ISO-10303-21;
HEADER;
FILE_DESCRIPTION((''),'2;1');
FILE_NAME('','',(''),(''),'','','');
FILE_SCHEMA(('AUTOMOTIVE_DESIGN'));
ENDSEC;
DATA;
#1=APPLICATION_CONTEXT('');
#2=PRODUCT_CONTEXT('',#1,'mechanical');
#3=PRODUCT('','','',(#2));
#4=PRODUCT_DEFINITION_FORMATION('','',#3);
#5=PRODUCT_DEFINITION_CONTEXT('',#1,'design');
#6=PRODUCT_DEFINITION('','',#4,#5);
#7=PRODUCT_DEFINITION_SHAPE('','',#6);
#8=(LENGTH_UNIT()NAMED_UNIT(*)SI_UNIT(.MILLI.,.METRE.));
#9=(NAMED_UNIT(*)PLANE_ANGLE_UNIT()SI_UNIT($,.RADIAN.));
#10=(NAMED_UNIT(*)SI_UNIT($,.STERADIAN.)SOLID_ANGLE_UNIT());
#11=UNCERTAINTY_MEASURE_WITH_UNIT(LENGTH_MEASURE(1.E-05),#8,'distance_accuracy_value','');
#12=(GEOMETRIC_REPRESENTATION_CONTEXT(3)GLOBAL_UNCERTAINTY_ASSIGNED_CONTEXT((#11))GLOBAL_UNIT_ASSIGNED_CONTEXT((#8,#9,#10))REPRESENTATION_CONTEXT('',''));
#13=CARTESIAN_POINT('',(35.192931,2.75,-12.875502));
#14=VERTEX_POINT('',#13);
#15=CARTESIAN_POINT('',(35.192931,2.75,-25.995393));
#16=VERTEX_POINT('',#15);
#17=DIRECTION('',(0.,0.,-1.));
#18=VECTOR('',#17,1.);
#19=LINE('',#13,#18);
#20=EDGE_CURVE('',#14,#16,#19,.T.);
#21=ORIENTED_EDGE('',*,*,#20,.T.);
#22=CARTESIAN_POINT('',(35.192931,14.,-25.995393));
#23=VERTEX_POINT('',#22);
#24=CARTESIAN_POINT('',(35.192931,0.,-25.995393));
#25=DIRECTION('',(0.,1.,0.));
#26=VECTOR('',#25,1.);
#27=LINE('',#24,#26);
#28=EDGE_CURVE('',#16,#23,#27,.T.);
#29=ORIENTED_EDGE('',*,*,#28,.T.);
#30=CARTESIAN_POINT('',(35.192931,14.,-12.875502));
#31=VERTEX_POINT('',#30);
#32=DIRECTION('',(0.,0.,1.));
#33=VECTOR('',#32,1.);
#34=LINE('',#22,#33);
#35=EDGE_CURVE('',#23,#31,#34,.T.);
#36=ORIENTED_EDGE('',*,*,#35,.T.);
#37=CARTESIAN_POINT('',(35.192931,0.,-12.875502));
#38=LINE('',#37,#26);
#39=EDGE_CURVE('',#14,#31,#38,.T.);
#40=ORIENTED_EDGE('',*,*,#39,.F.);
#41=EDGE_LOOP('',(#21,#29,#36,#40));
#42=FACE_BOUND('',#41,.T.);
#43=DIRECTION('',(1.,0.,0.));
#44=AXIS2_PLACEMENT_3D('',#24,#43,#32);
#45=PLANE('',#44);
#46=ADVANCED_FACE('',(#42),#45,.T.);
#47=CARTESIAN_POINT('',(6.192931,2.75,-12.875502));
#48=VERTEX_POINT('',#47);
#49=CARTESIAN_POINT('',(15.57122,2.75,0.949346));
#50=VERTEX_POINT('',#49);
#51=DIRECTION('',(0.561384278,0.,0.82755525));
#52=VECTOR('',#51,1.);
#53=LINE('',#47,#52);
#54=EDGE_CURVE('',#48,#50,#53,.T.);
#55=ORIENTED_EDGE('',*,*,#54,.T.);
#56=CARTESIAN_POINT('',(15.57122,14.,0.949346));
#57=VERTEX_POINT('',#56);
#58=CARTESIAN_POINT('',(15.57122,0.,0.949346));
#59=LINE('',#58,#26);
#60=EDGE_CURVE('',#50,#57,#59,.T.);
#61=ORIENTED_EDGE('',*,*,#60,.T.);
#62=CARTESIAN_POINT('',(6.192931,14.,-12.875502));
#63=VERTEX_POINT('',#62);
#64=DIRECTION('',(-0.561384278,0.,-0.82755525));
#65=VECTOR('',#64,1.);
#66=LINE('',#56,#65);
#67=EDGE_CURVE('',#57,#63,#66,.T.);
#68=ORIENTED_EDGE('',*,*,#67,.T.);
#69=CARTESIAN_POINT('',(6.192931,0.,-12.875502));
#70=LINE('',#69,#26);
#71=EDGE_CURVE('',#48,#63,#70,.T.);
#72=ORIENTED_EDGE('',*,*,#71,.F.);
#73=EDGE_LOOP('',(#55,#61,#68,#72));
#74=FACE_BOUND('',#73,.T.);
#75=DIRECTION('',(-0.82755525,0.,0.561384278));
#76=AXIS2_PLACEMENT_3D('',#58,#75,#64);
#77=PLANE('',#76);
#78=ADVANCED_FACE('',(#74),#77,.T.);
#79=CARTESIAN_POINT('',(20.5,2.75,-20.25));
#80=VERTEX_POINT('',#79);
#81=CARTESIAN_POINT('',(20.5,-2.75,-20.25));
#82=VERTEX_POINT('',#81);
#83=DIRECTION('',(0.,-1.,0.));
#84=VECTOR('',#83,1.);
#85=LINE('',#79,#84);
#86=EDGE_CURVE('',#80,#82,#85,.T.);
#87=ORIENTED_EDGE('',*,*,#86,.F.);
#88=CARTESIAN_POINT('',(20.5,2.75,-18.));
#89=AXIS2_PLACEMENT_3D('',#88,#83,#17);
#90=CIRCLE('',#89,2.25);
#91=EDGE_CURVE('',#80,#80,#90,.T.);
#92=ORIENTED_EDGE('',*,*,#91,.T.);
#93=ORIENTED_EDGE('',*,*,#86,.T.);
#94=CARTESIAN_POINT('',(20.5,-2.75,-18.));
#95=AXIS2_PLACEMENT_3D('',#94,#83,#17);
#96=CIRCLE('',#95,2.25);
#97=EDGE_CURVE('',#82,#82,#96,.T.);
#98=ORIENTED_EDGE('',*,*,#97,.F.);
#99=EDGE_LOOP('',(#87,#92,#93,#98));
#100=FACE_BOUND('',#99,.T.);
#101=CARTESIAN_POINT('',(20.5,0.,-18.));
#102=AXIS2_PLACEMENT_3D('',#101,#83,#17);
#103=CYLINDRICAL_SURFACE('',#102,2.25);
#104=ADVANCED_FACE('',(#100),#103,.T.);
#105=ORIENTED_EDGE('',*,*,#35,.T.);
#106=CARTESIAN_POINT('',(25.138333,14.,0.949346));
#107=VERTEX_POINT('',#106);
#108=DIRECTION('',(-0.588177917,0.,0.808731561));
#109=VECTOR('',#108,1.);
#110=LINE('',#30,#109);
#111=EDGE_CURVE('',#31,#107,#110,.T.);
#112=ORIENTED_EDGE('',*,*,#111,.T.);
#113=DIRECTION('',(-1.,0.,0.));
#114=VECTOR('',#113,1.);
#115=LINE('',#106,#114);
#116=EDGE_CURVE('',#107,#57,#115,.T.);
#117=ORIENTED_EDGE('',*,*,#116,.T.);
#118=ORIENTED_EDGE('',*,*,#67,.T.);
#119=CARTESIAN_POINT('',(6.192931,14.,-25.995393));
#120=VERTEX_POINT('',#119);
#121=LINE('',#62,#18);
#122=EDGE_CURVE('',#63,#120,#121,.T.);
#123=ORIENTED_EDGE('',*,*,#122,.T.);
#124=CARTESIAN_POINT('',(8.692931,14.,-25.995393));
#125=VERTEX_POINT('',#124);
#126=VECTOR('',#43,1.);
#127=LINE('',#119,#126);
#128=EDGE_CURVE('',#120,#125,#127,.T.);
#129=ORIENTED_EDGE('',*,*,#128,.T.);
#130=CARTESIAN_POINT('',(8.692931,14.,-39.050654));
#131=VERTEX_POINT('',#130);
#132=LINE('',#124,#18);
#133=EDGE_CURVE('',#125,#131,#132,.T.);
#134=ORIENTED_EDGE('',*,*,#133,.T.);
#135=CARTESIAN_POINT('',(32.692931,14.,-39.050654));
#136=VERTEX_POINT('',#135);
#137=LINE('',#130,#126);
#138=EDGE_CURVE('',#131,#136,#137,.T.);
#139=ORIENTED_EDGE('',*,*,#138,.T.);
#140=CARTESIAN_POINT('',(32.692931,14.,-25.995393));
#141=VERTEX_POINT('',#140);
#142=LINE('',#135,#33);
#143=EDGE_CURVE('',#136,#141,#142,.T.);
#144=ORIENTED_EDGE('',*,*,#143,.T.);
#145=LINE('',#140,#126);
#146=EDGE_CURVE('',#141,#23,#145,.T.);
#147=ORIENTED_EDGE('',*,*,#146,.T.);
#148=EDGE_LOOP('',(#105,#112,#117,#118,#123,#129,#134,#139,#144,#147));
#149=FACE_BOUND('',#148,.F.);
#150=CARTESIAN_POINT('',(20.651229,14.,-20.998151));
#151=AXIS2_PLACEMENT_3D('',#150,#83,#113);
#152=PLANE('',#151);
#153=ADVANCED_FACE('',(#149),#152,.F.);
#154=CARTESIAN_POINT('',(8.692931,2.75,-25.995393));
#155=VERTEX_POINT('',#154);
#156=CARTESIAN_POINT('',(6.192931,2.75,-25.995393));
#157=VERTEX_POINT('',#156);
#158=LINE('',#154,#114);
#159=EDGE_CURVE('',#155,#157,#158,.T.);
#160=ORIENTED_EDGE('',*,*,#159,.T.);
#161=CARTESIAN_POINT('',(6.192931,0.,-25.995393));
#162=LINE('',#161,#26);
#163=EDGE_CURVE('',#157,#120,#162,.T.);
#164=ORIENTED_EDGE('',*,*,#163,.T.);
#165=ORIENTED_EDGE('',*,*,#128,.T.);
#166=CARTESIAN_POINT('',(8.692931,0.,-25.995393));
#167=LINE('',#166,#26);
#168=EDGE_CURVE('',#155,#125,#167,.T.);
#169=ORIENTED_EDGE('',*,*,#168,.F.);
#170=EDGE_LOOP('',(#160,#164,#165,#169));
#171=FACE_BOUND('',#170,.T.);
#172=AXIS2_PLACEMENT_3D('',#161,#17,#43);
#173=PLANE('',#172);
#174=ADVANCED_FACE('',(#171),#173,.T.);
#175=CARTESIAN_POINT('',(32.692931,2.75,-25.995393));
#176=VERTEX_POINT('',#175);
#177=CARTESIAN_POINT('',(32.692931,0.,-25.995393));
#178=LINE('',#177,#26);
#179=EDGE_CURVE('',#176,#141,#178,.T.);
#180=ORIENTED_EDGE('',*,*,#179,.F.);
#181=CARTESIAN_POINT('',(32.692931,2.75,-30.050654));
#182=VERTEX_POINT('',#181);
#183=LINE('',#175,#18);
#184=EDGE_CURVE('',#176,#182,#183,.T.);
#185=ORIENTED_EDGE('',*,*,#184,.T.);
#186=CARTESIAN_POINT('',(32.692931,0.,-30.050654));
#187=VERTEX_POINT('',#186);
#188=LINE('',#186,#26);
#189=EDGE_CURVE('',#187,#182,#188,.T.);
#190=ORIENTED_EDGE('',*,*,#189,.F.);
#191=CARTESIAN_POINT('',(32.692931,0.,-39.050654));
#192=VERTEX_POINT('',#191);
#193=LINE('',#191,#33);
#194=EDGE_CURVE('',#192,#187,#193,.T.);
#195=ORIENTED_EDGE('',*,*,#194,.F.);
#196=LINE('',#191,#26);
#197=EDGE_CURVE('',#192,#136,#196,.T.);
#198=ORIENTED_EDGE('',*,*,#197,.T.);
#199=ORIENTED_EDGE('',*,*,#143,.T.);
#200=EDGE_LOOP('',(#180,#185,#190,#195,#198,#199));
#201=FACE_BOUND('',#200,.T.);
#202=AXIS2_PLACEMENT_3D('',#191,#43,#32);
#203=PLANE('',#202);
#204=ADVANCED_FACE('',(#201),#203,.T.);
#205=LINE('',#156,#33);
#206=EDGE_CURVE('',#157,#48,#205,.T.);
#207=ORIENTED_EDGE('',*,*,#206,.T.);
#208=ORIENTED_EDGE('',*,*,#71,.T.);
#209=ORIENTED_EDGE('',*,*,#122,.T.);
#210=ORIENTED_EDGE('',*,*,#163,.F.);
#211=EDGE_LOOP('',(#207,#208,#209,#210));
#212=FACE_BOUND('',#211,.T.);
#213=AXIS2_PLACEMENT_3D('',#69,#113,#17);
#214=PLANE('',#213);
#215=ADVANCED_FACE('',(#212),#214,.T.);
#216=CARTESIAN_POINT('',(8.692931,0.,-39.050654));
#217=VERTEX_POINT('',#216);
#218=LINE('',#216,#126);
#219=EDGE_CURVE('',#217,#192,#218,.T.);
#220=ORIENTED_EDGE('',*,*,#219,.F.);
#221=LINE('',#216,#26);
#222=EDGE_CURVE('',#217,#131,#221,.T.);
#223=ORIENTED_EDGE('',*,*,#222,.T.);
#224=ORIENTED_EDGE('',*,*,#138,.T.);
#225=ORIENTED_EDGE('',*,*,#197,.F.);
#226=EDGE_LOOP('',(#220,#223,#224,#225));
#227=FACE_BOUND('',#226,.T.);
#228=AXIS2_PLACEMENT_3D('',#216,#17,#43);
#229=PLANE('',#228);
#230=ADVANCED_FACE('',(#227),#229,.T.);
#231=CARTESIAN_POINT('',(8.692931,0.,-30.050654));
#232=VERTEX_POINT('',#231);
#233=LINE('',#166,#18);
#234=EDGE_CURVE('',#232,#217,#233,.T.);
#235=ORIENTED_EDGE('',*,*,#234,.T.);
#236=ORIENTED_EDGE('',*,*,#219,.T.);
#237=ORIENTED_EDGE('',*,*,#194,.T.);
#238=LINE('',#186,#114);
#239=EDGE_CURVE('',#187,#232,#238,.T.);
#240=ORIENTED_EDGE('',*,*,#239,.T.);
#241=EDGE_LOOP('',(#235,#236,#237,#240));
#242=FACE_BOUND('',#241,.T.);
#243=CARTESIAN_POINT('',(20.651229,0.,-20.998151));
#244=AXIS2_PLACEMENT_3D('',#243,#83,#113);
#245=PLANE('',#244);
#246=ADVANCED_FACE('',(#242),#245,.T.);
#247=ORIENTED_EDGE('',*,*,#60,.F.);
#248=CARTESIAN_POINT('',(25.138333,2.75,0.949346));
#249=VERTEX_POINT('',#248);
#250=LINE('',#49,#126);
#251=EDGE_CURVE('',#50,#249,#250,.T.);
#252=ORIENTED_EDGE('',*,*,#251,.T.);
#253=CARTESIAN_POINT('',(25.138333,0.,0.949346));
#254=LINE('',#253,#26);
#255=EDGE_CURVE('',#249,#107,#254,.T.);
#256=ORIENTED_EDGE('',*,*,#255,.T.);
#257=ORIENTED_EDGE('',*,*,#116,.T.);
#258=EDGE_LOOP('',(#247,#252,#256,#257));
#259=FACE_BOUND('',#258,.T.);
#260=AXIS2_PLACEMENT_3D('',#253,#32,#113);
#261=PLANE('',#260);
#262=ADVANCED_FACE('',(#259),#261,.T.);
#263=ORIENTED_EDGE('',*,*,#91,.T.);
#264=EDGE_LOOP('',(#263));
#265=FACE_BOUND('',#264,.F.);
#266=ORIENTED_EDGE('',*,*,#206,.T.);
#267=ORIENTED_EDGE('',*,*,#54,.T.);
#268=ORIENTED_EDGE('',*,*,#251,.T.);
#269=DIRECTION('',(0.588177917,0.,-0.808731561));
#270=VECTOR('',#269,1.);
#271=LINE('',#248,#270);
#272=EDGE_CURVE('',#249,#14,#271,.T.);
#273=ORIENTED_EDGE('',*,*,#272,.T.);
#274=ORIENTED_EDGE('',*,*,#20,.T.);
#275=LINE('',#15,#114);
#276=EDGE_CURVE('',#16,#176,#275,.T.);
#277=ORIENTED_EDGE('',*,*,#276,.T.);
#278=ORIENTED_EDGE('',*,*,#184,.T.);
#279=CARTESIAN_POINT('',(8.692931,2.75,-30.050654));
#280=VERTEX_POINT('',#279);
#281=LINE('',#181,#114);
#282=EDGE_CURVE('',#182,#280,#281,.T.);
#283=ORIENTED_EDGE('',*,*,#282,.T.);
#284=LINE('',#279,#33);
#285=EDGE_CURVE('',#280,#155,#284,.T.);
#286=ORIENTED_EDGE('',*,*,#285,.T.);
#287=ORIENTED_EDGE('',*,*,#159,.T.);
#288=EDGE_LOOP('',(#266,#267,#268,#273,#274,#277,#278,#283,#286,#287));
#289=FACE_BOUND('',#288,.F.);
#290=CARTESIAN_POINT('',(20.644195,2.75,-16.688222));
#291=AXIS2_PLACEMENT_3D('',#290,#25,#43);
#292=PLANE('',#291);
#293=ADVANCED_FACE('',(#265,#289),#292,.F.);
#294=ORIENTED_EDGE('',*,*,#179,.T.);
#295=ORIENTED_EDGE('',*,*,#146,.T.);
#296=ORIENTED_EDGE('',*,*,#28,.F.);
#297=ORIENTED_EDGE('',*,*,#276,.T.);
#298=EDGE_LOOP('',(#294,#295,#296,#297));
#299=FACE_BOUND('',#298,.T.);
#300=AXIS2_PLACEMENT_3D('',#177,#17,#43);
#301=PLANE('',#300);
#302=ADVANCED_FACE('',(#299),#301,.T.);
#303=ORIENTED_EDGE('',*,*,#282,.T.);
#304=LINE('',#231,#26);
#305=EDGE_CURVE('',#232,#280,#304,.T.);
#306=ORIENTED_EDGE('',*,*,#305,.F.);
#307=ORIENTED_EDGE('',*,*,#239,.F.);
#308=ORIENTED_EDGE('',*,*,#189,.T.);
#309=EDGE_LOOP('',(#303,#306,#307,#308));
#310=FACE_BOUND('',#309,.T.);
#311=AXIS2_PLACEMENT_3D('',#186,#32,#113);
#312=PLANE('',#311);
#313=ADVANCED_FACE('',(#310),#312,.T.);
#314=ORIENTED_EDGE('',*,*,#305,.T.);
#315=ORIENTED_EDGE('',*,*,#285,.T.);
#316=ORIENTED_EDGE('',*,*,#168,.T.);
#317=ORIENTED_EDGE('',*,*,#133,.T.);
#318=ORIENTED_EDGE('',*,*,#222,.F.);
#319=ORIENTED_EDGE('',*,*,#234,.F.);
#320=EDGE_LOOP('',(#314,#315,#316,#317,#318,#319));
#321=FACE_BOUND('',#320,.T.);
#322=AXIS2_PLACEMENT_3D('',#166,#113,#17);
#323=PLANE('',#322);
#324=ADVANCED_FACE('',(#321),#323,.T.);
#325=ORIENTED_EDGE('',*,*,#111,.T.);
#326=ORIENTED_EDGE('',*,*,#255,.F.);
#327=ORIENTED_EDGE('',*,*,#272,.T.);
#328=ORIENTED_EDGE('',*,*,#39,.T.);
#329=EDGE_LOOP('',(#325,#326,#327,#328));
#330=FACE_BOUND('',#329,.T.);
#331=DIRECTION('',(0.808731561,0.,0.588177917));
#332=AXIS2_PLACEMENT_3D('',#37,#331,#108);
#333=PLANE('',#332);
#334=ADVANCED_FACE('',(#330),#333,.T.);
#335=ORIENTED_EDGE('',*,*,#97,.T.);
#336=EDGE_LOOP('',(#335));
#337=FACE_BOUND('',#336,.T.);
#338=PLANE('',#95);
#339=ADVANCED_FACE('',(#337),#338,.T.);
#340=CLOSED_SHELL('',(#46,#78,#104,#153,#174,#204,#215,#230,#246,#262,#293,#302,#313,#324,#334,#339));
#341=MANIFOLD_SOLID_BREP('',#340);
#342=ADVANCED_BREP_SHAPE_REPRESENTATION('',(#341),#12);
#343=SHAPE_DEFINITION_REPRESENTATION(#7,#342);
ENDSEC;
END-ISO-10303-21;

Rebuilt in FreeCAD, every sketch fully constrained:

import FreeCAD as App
import Part
import Sketcher
from FreeCAD import Vector


def add_polygon(sketch, points):
    """Adds a closed chain of lines whose ends are joined by coincident constraints."""
    first, n = sketch.GeometryCount, len(points)
    for a, b in zip(points, points[1:] + points[:1]):
        sketch.addGeometry(Part.LineSegment(App.Vector(*a, 0), App.Vector(*b, 0)), False)
    for i in range(n):
        sketch.addConstraint(Sketcher.Constraint("Coincident", first + i, 2, first + (i + 1) % n, 1))

doc = App.newDocument("Part")
params = doc.addObject("Spreadsheet::Sheet", "Params")
for row, (alias, value) in enumerate([
    ("sketch1_width", "24 mm"),
    ("sketch1_width2", "2.5 mm"),
    ("pad1_length", "14 mm"),
    ("sketch2_diameter", "4.5 mm"),
    ("pad2_length", "2.75 mm"),
    ("sketch3_diameter", "4.5 mm"),
    ("sketch3_width", "24 mm"),
    ("sketch3_width2", "2.5 mm"),
    ("pocket1_length", "2.75 mm"),
], start=1):
    params.set(f"A{row}", alias)
    params.set(f"B{row}", "=" + value)
    params.setAlias(f"B{row}", alias)

body = doc.addObject("PartDesign::Body", "Body")

# Sketch on XZ plane
sketch1 = doc.addObject("Sketcher::SketchObject", "Sketch")
body.addObject(sketch1)
sketch1.AttachmentSupport = (doc.XZ_Plane, [""])
sketch1.MapMode = "FlatFace"
add_polygon(sketch1, [(32.7, -39.1), (8.7, -39.1), (8.7, -26), (6.2, -26), (6.2, -12.9), (15.6, 0.9), (25.1, 0.9), (35.2, -12.9), (35.2, -26), (32.7, -26)])  # lines 0-9
sketch1.addConstraint(Sketcher.Constraint("Horizontal", 0))
sketch1.addConstraint(Sketcher.Constraint("Vertical", 1))
sketch1.addConstraint(Sketcher.Constraint("Horizontal", 2))
sketch1.addConstraint(Sketcher.Constraint("Vertical", 3))
sketch1.addConstraint(Sketcher.Constraint("Horizontal", 5))
sketch1.addConstraint(Sketcher.Constraint("Vertical", 7))
sketch1.addConstraint(Sketcher.Constraint("Horizontal", 8))
sketch1.addConstraint(Sketcher.Constraint("Vertical", 9))
sketch1.addConstraint(Sketcher.Constraint("Horizontal", 3, 2, 6, 2))
sketch1.addConstraint(Sketcher.Constraint("Horizontal", 2, 2, 7, 2))
sketch1.addConstraint(Sketcher.Constraint("Equal", 2, 8))
sketch1.addConstraint(Sketcher.Constraint("DistanceX", 0, 2, 0, 1, 24.0))
sketch1.addConstraint(Sketcher.Constraint("DistanceX", 2, 2, 2, 1, 2.5))
sketch1.addConstraint(Sketcher.Constraint("DistanceY", 0, 2, 4, 2, 40.0))
sketch1.addConstraint(Sketcher.Constraint("DistanceY", 1, 1, 1, 2, 13.055261))
sketch1.addConstraint(Sketcher.Constraint("DistanceY", 3, 1, 3, 2, 13.119891))
sketch1.addConstraint(Sketcher.Constraint("DistanceY", 3, 2, -1, 1, 12.875502))
sketch1.addConstraint(Sketcher.Constraint("Distance", 4, 16.70565))
sketch1.addConstraint(Sketcher.Constraint("DistanceX", 5, 1, 5, 2, 9.567114))
sketch1.addConstraint(Sketcher.Constraint("DistanceX", -1, 1, 0, 2, 8.692931))
sketch1.setExpression("Constraints[21]", "Params.sketch1_width")
sketch1.setExpression("Constraints[22]", "Params.sketch1_width2")
pad1 = doc.addObject("PartDesign::Pad", "Pad")
body.addObject(pad1)
pad1.Profile = sketch1
pad1.setExpression("Length", "Params.pad1_length")
pad1.Reversed = True

# Sketch on XZ plane
sketch2 = doc.addObject("Sketcher::SketchObject", "Sketch001")
body.addObject(sketch2)
sketch2.AttachmentSupport = (doc.XZ_Plane, [""])
sketch2.MapMode = "FlatFace"
sketch2.addGeometry(Part.Circle(Vector(20.5, -18, 0), Vector(0, 0, 1), 2.2), False)
sketch2.addConstraint(Sketcher.Constraint("Diameter", 0, 4.5))
sketch2.addConstraint(Sketcher.Constraint("DistanceY", 0, 3, -1, 1, 18.0))
sketch2.addConstraint(Sketcher.Constraint("DistanceX", -1, 1, 0, 3, 20.5))
sketch2.setExpression("Constraints[0]", "Params.sketch2_diameter")
pad2 = doc.addObject("PartDesign::Pad", "Pad001")
body.addObject(pad2)
pad2.Profile = sketch2
pad2.setExpression("Length", "Params.pad2_length")

# Sketch on XZ plane
sketch3 = doc.addObject("Sketcher::SketchObject", "Sketch002")
body.addObject(sketch3)
sketch3.AttachmentSupport = (doc.XZ_Plane, [""])
sketch3.MapMode = "FlatFace"
add_polygon(sketch3, [(8.7, -26), (8.7, -30.1), (32.7, -30.1), (32.7, -26), (35.2, -26), (35.2, -12.9), (25.1, 0.9), (15.6, 0.9), (6.2, -12.9), (6.2, -26)])  # lines 0-9
sketch3.addGeometry(Part.Circle(Vector(20.5, -18, 0), Vector(0, 0, 1), 2.2), False)  # 10
sketch3.addConstraint(Sketcher.Constraint("Vertical", 0))
sketch3.addConstraint(Sketcher.Constraint("Horizontal", 1))
sketch3.addConstraint(Sketcher.Constraint("Vertical", 2))
sketch3.addConstraint(Sketcher.Constraint("Horizontal", 3))
sketch3.addConstraint(Sketcher.Constraint("Vertical", 4))
sketch3.addConstraint(Sketcher.Constraint("Horizontal", 6))
sketch3.addConstraint(Sketcher.Constraint("Vertical", 8))
sketch3.addConstraint(Sketcher.Constraint("Horizontal", 9))
sketch3.addConstraint(Sketcher.Constraint("Horizontal", 4, 2, 7, 2))
sketch3.addConstraint(Sketcher.Constraint("Horizontal", 3, 2, 8, 2))
sketch3.addConstraint(Sketcher.Constraint("Equal", 3, 9))
sketch3.addConstraint(Sketcher.Constraint("Diameter", 10, 4.5))
sketch3.addConstraint(Sketcher.Constraint("DistanceX", 1, 1, 1, 2, 24.0))
sketch3.addConstraint(Sketcher.Constraint("DistanceX", 3, 1, 3, 2, 2.5))
sketch3.addConstraint(Sketcher.Constraint("DistanceY", 10, 3, -1, 1, 18.0))
sketch3.addConstraint(Sketcher.Constraint("DistanceY", 1, 2, 5, 2, 31.0))
sketch3.addConstraint(Sketcher.Constraint("DistanceX", -1, 1, 10, 3, 20.5))
sketch3.addConstraint(Sketcher.Constraint("DistanceY", 0, 2, 0, 1, 4.055261))
sketch3.addConstraint(Sketcher.Constraint("DistanceY", 4, 1, 4, 2, 13.119891))
sketch3.addConstraint(Sketcher.Constraint("DistanceY", 4, 2, -1, 1, 12.875502))
sketch3.addConstraint(Sketcher.Constraint("Distance", 7, 16.70565))
sketch3.addConstraint(Sketcher.Constraint("DistanceX", 6, 2, 6, 1, 9.567114))
sketch3.addConstraint(Sketcher.Constraint("DistanceX", -1, 1, 0, 2, 8.692931))
sketch3.setExpression("Constraints[21]", "Params.sketch3_diameter")
sketch3.setExpression("Constraints[22]", "Params.sketch3_width")
sketch3.setExpression("Constraints[23]", "Params.sketch3_width2")
pocket1 = doc.addObject("PartDesign::Pocket", "Pocket")
body.addObject(pocket1)
pocket1.Profile = sketch3
pocket1.setExpression("Length", "Params.pocket1_length")

doc.recompute()
